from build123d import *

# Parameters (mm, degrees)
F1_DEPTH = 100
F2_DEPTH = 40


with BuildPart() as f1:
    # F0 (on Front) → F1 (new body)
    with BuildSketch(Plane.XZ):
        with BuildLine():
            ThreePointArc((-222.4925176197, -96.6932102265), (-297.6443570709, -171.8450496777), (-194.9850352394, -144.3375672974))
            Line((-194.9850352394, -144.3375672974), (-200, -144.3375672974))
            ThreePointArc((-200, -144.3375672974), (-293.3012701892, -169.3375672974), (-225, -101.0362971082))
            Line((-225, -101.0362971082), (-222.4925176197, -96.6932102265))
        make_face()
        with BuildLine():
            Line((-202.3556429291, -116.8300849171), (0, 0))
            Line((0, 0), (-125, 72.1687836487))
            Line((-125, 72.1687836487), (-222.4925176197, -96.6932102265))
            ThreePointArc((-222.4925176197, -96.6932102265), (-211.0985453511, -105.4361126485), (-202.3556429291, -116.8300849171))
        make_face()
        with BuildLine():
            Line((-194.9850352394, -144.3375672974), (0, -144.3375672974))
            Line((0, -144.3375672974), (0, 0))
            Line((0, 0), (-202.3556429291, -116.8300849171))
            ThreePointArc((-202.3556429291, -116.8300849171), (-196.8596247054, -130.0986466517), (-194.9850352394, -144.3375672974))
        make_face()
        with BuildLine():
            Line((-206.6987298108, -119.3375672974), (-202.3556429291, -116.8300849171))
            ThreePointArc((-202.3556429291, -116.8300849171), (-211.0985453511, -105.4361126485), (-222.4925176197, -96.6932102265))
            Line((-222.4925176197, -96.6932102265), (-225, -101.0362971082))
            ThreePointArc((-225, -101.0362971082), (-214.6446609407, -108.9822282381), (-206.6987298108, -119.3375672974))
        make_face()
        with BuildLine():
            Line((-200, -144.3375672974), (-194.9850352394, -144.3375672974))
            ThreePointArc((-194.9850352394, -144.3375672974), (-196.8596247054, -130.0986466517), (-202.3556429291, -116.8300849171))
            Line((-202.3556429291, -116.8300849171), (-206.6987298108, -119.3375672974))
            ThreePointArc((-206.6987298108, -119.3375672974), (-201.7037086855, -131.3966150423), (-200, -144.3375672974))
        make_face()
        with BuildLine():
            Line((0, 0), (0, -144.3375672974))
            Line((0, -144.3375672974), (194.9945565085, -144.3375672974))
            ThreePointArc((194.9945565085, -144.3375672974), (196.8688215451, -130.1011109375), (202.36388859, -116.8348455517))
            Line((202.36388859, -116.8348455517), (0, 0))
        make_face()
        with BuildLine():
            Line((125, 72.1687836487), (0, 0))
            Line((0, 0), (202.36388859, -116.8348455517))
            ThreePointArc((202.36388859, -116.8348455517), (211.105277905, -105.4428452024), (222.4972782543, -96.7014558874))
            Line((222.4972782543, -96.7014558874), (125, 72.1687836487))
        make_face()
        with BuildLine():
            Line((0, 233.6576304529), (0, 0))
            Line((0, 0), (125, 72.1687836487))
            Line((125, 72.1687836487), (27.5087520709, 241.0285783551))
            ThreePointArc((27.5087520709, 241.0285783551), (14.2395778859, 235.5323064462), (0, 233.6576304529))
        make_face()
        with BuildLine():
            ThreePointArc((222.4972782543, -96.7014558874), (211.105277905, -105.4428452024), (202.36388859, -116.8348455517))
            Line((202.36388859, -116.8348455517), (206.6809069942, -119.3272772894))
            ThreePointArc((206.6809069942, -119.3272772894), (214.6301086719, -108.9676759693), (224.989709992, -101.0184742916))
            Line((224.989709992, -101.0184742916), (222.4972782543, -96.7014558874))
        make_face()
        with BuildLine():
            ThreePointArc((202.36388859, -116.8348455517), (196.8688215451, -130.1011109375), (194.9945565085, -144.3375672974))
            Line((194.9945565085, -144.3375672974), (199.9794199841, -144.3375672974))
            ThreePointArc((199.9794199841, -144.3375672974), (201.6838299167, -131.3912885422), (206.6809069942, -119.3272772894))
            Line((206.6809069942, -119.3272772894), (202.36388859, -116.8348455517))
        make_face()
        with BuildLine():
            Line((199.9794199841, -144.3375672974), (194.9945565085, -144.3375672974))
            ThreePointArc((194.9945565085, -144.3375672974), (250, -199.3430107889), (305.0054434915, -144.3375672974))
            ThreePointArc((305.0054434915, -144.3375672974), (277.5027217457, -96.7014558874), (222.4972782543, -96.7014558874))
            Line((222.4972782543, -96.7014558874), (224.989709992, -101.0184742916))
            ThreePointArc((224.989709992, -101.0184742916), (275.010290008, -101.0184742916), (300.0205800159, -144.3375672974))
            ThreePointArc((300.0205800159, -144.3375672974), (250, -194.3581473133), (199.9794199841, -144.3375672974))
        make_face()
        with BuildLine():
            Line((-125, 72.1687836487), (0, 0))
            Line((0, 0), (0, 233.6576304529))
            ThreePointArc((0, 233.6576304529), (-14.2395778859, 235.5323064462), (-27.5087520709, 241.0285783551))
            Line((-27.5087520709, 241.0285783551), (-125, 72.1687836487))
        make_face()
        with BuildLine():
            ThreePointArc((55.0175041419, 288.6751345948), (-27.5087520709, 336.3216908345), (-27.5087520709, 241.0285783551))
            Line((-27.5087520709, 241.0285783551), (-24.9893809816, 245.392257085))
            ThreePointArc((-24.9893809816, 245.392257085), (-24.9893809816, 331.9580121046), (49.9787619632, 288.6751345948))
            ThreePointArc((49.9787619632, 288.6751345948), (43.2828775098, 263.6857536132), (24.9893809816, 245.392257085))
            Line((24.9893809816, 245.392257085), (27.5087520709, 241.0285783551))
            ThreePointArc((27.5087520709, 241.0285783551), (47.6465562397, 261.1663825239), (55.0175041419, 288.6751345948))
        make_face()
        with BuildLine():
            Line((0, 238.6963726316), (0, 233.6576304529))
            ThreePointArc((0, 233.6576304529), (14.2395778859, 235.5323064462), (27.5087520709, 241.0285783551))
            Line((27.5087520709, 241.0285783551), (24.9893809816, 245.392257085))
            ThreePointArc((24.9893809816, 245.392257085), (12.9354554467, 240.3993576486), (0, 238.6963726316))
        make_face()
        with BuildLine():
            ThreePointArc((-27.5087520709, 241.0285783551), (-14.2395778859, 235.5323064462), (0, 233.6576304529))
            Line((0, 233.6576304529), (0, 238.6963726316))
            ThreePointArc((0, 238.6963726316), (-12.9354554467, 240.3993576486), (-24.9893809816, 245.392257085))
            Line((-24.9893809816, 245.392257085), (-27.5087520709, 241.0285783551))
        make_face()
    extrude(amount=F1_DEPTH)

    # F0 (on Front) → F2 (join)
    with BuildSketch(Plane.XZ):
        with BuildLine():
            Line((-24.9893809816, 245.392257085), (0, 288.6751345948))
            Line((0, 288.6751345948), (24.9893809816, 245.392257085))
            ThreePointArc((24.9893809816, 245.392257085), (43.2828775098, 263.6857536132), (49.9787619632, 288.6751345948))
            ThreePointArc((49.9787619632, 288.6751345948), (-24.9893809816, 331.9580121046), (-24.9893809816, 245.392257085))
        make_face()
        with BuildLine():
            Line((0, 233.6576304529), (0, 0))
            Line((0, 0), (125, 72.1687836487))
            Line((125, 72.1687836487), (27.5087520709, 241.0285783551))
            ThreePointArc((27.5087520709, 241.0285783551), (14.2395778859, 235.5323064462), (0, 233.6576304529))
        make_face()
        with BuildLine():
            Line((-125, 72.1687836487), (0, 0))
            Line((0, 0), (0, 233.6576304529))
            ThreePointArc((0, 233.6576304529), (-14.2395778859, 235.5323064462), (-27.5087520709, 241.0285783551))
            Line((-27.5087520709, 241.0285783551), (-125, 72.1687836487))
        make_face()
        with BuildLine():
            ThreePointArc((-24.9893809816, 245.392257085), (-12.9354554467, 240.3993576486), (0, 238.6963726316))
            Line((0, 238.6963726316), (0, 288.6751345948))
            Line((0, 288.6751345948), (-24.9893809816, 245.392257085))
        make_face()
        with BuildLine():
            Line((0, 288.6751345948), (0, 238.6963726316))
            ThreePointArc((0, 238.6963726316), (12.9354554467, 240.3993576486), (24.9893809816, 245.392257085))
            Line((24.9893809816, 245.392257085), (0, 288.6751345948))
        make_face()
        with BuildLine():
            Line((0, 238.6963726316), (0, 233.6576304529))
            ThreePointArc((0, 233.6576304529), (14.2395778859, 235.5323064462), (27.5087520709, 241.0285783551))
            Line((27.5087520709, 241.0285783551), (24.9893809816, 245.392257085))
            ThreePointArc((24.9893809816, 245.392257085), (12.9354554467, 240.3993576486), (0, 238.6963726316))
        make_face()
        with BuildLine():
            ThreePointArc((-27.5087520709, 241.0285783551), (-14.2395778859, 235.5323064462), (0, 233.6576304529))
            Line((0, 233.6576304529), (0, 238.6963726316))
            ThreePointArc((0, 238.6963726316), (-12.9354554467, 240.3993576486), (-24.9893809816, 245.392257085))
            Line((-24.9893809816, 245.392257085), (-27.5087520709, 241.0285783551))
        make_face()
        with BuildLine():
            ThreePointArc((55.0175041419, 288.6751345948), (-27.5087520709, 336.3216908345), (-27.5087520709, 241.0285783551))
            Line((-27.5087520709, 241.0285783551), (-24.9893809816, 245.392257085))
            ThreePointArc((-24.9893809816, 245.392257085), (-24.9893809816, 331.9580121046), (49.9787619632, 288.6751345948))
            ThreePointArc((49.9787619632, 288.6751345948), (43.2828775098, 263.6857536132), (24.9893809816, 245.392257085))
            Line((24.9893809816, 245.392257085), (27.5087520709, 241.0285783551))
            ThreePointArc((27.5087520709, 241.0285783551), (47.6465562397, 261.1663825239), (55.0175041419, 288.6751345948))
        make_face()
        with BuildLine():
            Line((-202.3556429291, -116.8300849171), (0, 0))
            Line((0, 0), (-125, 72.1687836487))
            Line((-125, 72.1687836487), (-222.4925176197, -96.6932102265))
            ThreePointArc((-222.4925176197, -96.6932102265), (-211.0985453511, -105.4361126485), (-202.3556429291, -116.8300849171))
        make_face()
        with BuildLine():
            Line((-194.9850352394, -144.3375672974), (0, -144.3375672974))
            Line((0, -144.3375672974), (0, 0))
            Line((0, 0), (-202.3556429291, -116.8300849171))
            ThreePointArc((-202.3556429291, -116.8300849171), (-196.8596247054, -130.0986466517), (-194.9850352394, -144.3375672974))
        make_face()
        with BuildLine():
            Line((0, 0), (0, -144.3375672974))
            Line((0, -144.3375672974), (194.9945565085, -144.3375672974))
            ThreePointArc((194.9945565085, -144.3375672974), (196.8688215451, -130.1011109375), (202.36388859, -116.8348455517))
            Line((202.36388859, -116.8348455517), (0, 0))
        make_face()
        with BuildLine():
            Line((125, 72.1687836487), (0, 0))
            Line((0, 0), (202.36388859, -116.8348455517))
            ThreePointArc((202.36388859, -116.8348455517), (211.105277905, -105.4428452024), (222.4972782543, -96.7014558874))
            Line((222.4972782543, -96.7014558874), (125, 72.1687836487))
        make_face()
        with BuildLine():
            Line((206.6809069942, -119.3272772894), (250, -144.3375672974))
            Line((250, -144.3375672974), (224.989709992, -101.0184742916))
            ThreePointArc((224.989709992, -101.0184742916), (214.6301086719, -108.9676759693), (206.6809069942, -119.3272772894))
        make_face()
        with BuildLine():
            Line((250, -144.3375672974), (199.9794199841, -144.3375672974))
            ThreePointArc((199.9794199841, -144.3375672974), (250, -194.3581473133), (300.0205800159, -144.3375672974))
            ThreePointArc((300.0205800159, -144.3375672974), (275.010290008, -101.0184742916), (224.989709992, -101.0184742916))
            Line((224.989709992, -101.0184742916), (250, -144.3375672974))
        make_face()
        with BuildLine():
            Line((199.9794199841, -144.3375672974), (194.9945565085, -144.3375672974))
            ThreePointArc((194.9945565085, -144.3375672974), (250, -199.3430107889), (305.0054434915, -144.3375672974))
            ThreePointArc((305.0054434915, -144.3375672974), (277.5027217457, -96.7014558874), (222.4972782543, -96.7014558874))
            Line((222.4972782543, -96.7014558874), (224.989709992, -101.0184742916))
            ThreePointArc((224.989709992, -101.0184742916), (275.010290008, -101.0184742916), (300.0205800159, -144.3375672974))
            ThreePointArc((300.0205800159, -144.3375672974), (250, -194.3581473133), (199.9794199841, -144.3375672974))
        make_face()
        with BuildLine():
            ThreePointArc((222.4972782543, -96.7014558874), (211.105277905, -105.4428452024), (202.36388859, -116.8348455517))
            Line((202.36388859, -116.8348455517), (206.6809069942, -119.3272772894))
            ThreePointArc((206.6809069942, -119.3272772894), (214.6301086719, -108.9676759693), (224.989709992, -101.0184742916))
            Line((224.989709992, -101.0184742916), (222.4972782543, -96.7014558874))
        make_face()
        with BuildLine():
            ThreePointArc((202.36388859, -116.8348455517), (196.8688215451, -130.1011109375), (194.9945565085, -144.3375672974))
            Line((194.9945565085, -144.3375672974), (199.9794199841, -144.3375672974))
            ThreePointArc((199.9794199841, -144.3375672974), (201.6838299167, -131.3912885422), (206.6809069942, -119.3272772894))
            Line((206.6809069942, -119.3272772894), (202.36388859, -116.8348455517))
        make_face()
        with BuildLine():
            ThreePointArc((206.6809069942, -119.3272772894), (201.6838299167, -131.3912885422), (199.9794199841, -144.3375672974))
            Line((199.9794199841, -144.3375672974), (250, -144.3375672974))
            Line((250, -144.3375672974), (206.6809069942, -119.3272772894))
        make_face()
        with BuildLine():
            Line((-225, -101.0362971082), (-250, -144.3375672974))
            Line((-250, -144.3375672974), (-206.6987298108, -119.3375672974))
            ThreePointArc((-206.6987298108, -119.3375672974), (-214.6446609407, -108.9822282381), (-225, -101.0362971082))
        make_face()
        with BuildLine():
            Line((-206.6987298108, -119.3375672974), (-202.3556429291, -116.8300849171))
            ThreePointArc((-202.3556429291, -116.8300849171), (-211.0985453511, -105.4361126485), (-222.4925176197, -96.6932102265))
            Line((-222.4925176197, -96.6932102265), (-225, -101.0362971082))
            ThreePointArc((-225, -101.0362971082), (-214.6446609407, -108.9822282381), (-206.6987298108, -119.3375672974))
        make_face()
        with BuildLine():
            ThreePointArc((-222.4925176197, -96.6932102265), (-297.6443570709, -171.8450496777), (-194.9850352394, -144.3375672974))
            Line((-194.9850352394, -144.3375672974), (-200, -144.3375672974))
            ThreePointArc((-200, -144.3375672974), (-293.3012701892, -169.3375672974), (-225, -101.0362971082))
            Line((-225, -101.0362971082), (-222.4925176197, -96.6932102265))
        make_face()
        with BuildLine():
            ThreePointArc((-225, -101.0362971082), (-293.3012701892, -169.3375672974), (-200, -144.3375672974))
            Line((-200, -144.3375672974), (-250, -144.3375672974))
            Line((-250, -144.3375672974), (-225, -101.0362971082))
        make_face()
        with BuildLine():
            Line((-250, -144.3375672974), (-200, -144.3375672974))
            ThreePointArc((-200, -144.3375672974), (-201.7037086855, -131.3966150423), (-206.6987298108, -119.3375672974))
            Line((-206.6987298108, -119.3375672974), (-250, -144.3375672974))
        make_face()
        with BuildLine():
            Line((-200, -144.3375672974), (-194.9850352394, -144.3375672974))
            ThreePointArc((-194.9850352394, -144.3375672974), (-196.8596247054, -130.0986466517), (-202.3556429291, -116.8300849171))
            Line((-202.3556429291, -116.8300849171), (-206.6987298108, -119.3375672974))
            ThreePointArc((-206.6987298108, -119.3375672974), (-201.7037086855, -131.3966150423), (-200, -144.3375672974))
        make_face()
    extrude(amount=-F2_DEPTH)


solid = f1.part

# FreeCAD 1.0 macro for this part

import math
import FreeCAD as App
import Part
import Sketcher
from FreeCAD import Vector
Q = App.Units.Quantity

doc = App.newDocument("Part")
body = doc.addObject("PartDesign::Body", "Body")

# Sketch on XZ plane
sketch1 = body.newObject("Sketcher::SketchObject", "Sketch")
sketch1.AttachmentSupport = (doc.getObject("XZ_Plane"), [""])
sketch1.MapMode = "FlatFace"
sketch1.addGeometry([
    Part.ArcOfCircle(Part.Circle(Vector(0, 289, 0), Vector(0, 0, 1), 55), math.radians(0), math.radians(240)),  # 0
    Part.LineSegment(Vector(-28, 241, 0), Vector(-222, -97, 0)),  # 1
    Part.ArcOfCircle(Part.Circle(Vector(-250, -144, 0), Vector(0, 0, 1), 55), math.radians(60), math.radians(360)),  # 2
    Part.LineSegment(Vector(-195, -144, 0), Vector(195, -144, 0)),  # 3
    Part.ArcOfCircle(Part.Circle(Vector(250, -144, 0), Vector(0, 0, 1), 55), math.radians(180), math.radians(360)),  # 4
    Part.ArcOfCircle(Part.Circle(Vector(250, -144, 0), Vector(0, 0, 1), 55), math.radians(0), math.radians(120)),  # 5
    Part.LineSegment(Vector(222, -97, 0), Vector(28, 241, 0)),  # 6
    Part.ArcOfCircle(Part.Circle(Vector(0, 289, 0), Vector(0, 0, 1), 55), math.radians(-60), math.radians(0)),  # 7
    Part.ArcOfCircle(Part.Circle(Vector(-250, -144, 0), Vector(0, 0, 1), 50), math.radians(30), math.radians(60)),  # 8
    Part.ArcOfCircle(Part.Circle(Vector(-250, -144, 0), Vector(0, 0, 1), 50), math.radians(0), math.radians(30)),  # 9
    Part.ArcOfCircle(Part.Circle(Vector(-250, -144, 0), Vector(0, 0, 1), 50), math.radians(60), math.radians(360)),  # 10
    Part.ArcOfCircle(Part.Circle(Vector(250, -144, 0), Vector(0, 0, 1), 50), math.radians(150), math.radians(180)),  # 11
    Part.ArcOfCircle(Part.Circle(Vector(250, -144, 0), Vector(0, 0, 1), 50), math.radians(120), math.radians(150)),  # 12
    Part.ArcOfCircle(Part.Circle(Vector(250, -144, 0), Vector(0, 0, 1), 50), math.radians(180), math.radians(480)),  # 13
    Part.ArcOfCircle(Part.Circle(Vector(0, 289, 0), Vector(0, 0, 1), 50), math.radians(-90), math.radians(0)),  # 14
    Part.ArcOfCircle(Part.Circle(Vector(0, 289, 0), Vector(0, 0, 1), 50), math.radians(0), math.radians(270)),  # 15
], False)
sketch1.addConstraint([
    Sketcher.Constraint("Coincident", 0, 2, 1, 1),
    Sketcher.Constraint("Coincident", 1, 2, 2, 1),
    Sketcher.Constraint("Coincident", 2, 2, 3, 1),
    Sketcher.Constraint("Coincident", 3, 2, 4, 1),
    Sketcher.Constraint("Tangent", 4, 2, 5, 1),
    Sketcher.Constraint("Coincident", 5, 2, 6, 1),
    Sketcher.Constraint("Coincident", 6, 2, 7, 1),
    Sketcher.Constraint("Tangent", 7, 2, 0, 1),
    Sketcher.Constraint("Tangent", 8, 1, 9, 2),
    Sketcher.Constraint("Tangent", 9, 1, 10, 2),
    Sketcher.Constraint("Tangent", 10, 1, 8, 2),
    Sketcher.Constraint("Tangent", 11, 1, 12, 2),
    Sketcher.Constraint("Tangent", 12, 1, 13, 2),
    Sketcher.Constraint("Tangent", 13, 1, 11, 2),
    Sketcher.Constraint("Tangent", 14, 1, 15, 2),
    Sketcher.Constraint("Coincident", 15, 1, 14, 2),
    Sketcher.Constraint("Horizontal", 3),
    Sketcher.Constraint("Coincident", 8, 3, 2, 3),
    Sketcher.Constraint("Coincident", 11, 3, 4, 3),
    Sketcher.Constraint("Coincident", 14, 3, 0, 3),
    Sketcher.Constraint("Equal", 4, 5),
    Sketcher.Constraint("Equal", 0, 7),
    Sketcher.Constraint("Symmetric", 2, 3, 4, 3, -2),
    Sketcher.Constraint("Symmetric", 0, 2, 6, 2, -2),
    Sketcher.Constraint("PointOnObject", 14, 1, -2),
    Sketcher.Constraint("Horizontal", 13, 3, 2, 2),
    Sketcher.Constraint("Horizontal", 3, 2, 4, 2),
    Sketcher.Constraint("Horizontal", 15, 3, 7, 2),
    Sketcher.Constraint("Horizontal", 4, 2, 9, 1),
    Sketcher.Constraint("Horizontal", 9, 1, 13, 1),
    Sketcher.Constraint("Horizontal", 7, 2, 15, 1),
    Sketcher.Constraint("Radius", 8, Q("50 mm")),
    Sketcher.Constraint("Angle", 1, Q("-120 deg")),
    Sketcher.Constraint("Angle", 6, Q("120 deg")),
    Sketcher.Constraint("DistanceX", 2, 3, -1, 1, Q("250 mm")),
    Sketcher.Constraint("DistanceX", 10, 1, -1, 1, Q("225 mm")),
    Sketcher.Constraint("DistanceY", 2, 2, 8, 1, Q("25 mm")),
    Sketcher.Constraint("Radius", 11, Q("50.02058 mm")),
    Sketcher.Constraint("Radius", 14, Q("49.978762 mm")),
    Sketcher.Constraint("Radius", 0, Q("55.017504 mm")),
    Sketcher.Constraint("Radius", 2, Q("55.014965 mm")),
    Sketcher.Constraint("Radius", 4, Q("55.005443 mm")),
    Sketcher.Constraint("DistanceY", 2, 3, 0, 3, Q("433.012702 mm")),
    Sketcher.Constraint("DistanceY", -1, 1, 0, 2, Q("241.028578 mm")),
    Sketcher.Constraint("DistanceX", -1, 1, 5, 2, Q("222.497278 mm")),
    Sketcher.Constraint("DistanceX", -1, 1, 12, 1, Q("224.98971 mm")),
    Sketcher.Constraint("DistanceX", 3, 2, 11, 1, Q("11.68635 mm")),
])
pad1 = body.newObject("PartDesign::Pad", "Pad")
pad1.Profile = sketch1
pad1.Length = 100

# Sketch on XZ plane
sketch2 = body.newObject("Sketcher::SketchObject", "Sketch001")
sketch2.AttachmentSupport = (doc.getObject("XZ_Plane"), [""])
sketch2.MapMode = "FlatFace"
sketch2.addGeometry([
    Part.ArcOfCircle(Part.Circle(Vector(-250, -144, 0), Vector(0, 0, 1), 55), math.radians(60), math.radians(360)),  # 0
    Part.LineSegment(Vector(-195, -144, 0), Vector(195, -144, 0)),  # 1
    Part.ArcOfCircle(Part.Circle(Vector(250, -144, 0), Vector(0, 0, 1), 55), math.radians(180), math.radians(360)),  # 2
    Part.ArcOfCircle(Part.Circle(Vector(250, -144, 0), Vector(0, 0, 1), 55), math.radians(0), math.radians(120)),  # 3
    Part.LineSegment(Vector(222, -97, 0), Vector(28, 241, 0)),  # 4
    Part.ArcOfCircle(Part.Circle(Vector(0, 289, 0), Vector(0, 0, 1), 55), math.radians(-60), math.radians(0)),  # 5
    Part.ArcOfCircle(Part.Circle(Vector(0, 289, 0), Vector(0, 0, 1), 55), math.radians(0), math.radians(240)),  # 6
    Part.LineSegment(Vector(-28, 241, 0), Vector(-222, -97, 0)),  # 7
], False)
sketch2.addConstraint([
    Sketcher.Constraint("Coincident", 0, 2, 1, 1),
    Sketcher.Constraint("Coincident", 1, 2, 2, 1),
    Sketcher.Constraint("Tangent", 2, 2, 3, 1),
    Sketcher.Constraint("Coincident", 3, 2, 4, 1),
    Sketcher.Constraint("Coincident", 4, 2, 5, 1),
    Sketcher.Constraint("Tangent", 5, 2, 6, 1),
    Sketcher.Constraint("Coincident", 6, 2, 7, 1),
    Sketcher.Constraint("Coincident", 7, 2, 0, 1),
    Sketcher.Constraint("Horizontal", 1),
    Sketcher.Constraint("Equal", 2, 3),
    Sketcher.Constraint("Equal", 5, 6),
    Sketcher.Constraint("Symmetric", 0, 3, 2, 3, -2),
    Sketcher.Constraint("Symmetric", 4, 2, 6, 2, -2),
    Sketcher.Constraint("Horizontal", 3, 3, 0, 2),
    Sketcher.Constraint("Horizontal", 1, 2, 2, 2),
    Sketcher.Constraint("Horizontal", 6, 3, 5, 2),
    Sketcher.Constraint("Angle", 4, Q("120 deg")),
    Sketcher.Constraint("Angle", 7, Q("-120 deg")),
    Sketcher.Constraint("DistanceX", 0, 3, -1, 1, Q("250 mm")),
    Sketcher.Constraint("Radius", 0, Q("55.014965 mm")),
    Sketcher.Constraint("Radius", 2, Q("55.005443 mm")),
    Sketcher.Constraint("Radius", 5, Q("55.017504 mm")),
    Sketcher.Constraint("DistanceY", 0, 3, 5, 3, Q("433.012702 mm")),
    Sketcher.Constraint("DistanceX", -1, 1, 3, 2, Q("222.497278 mm")),
    Sketcher.Constraint("DistanceY", -1, 1, 4, 2, Q("241.028578 mm")),
])
pad2 = body.newObject("PartDesign::Pad", "Pad001")
pad2.Profile = sketch2
pad2.Length = 40
pad2.Reversed = True

doc.recompute()
